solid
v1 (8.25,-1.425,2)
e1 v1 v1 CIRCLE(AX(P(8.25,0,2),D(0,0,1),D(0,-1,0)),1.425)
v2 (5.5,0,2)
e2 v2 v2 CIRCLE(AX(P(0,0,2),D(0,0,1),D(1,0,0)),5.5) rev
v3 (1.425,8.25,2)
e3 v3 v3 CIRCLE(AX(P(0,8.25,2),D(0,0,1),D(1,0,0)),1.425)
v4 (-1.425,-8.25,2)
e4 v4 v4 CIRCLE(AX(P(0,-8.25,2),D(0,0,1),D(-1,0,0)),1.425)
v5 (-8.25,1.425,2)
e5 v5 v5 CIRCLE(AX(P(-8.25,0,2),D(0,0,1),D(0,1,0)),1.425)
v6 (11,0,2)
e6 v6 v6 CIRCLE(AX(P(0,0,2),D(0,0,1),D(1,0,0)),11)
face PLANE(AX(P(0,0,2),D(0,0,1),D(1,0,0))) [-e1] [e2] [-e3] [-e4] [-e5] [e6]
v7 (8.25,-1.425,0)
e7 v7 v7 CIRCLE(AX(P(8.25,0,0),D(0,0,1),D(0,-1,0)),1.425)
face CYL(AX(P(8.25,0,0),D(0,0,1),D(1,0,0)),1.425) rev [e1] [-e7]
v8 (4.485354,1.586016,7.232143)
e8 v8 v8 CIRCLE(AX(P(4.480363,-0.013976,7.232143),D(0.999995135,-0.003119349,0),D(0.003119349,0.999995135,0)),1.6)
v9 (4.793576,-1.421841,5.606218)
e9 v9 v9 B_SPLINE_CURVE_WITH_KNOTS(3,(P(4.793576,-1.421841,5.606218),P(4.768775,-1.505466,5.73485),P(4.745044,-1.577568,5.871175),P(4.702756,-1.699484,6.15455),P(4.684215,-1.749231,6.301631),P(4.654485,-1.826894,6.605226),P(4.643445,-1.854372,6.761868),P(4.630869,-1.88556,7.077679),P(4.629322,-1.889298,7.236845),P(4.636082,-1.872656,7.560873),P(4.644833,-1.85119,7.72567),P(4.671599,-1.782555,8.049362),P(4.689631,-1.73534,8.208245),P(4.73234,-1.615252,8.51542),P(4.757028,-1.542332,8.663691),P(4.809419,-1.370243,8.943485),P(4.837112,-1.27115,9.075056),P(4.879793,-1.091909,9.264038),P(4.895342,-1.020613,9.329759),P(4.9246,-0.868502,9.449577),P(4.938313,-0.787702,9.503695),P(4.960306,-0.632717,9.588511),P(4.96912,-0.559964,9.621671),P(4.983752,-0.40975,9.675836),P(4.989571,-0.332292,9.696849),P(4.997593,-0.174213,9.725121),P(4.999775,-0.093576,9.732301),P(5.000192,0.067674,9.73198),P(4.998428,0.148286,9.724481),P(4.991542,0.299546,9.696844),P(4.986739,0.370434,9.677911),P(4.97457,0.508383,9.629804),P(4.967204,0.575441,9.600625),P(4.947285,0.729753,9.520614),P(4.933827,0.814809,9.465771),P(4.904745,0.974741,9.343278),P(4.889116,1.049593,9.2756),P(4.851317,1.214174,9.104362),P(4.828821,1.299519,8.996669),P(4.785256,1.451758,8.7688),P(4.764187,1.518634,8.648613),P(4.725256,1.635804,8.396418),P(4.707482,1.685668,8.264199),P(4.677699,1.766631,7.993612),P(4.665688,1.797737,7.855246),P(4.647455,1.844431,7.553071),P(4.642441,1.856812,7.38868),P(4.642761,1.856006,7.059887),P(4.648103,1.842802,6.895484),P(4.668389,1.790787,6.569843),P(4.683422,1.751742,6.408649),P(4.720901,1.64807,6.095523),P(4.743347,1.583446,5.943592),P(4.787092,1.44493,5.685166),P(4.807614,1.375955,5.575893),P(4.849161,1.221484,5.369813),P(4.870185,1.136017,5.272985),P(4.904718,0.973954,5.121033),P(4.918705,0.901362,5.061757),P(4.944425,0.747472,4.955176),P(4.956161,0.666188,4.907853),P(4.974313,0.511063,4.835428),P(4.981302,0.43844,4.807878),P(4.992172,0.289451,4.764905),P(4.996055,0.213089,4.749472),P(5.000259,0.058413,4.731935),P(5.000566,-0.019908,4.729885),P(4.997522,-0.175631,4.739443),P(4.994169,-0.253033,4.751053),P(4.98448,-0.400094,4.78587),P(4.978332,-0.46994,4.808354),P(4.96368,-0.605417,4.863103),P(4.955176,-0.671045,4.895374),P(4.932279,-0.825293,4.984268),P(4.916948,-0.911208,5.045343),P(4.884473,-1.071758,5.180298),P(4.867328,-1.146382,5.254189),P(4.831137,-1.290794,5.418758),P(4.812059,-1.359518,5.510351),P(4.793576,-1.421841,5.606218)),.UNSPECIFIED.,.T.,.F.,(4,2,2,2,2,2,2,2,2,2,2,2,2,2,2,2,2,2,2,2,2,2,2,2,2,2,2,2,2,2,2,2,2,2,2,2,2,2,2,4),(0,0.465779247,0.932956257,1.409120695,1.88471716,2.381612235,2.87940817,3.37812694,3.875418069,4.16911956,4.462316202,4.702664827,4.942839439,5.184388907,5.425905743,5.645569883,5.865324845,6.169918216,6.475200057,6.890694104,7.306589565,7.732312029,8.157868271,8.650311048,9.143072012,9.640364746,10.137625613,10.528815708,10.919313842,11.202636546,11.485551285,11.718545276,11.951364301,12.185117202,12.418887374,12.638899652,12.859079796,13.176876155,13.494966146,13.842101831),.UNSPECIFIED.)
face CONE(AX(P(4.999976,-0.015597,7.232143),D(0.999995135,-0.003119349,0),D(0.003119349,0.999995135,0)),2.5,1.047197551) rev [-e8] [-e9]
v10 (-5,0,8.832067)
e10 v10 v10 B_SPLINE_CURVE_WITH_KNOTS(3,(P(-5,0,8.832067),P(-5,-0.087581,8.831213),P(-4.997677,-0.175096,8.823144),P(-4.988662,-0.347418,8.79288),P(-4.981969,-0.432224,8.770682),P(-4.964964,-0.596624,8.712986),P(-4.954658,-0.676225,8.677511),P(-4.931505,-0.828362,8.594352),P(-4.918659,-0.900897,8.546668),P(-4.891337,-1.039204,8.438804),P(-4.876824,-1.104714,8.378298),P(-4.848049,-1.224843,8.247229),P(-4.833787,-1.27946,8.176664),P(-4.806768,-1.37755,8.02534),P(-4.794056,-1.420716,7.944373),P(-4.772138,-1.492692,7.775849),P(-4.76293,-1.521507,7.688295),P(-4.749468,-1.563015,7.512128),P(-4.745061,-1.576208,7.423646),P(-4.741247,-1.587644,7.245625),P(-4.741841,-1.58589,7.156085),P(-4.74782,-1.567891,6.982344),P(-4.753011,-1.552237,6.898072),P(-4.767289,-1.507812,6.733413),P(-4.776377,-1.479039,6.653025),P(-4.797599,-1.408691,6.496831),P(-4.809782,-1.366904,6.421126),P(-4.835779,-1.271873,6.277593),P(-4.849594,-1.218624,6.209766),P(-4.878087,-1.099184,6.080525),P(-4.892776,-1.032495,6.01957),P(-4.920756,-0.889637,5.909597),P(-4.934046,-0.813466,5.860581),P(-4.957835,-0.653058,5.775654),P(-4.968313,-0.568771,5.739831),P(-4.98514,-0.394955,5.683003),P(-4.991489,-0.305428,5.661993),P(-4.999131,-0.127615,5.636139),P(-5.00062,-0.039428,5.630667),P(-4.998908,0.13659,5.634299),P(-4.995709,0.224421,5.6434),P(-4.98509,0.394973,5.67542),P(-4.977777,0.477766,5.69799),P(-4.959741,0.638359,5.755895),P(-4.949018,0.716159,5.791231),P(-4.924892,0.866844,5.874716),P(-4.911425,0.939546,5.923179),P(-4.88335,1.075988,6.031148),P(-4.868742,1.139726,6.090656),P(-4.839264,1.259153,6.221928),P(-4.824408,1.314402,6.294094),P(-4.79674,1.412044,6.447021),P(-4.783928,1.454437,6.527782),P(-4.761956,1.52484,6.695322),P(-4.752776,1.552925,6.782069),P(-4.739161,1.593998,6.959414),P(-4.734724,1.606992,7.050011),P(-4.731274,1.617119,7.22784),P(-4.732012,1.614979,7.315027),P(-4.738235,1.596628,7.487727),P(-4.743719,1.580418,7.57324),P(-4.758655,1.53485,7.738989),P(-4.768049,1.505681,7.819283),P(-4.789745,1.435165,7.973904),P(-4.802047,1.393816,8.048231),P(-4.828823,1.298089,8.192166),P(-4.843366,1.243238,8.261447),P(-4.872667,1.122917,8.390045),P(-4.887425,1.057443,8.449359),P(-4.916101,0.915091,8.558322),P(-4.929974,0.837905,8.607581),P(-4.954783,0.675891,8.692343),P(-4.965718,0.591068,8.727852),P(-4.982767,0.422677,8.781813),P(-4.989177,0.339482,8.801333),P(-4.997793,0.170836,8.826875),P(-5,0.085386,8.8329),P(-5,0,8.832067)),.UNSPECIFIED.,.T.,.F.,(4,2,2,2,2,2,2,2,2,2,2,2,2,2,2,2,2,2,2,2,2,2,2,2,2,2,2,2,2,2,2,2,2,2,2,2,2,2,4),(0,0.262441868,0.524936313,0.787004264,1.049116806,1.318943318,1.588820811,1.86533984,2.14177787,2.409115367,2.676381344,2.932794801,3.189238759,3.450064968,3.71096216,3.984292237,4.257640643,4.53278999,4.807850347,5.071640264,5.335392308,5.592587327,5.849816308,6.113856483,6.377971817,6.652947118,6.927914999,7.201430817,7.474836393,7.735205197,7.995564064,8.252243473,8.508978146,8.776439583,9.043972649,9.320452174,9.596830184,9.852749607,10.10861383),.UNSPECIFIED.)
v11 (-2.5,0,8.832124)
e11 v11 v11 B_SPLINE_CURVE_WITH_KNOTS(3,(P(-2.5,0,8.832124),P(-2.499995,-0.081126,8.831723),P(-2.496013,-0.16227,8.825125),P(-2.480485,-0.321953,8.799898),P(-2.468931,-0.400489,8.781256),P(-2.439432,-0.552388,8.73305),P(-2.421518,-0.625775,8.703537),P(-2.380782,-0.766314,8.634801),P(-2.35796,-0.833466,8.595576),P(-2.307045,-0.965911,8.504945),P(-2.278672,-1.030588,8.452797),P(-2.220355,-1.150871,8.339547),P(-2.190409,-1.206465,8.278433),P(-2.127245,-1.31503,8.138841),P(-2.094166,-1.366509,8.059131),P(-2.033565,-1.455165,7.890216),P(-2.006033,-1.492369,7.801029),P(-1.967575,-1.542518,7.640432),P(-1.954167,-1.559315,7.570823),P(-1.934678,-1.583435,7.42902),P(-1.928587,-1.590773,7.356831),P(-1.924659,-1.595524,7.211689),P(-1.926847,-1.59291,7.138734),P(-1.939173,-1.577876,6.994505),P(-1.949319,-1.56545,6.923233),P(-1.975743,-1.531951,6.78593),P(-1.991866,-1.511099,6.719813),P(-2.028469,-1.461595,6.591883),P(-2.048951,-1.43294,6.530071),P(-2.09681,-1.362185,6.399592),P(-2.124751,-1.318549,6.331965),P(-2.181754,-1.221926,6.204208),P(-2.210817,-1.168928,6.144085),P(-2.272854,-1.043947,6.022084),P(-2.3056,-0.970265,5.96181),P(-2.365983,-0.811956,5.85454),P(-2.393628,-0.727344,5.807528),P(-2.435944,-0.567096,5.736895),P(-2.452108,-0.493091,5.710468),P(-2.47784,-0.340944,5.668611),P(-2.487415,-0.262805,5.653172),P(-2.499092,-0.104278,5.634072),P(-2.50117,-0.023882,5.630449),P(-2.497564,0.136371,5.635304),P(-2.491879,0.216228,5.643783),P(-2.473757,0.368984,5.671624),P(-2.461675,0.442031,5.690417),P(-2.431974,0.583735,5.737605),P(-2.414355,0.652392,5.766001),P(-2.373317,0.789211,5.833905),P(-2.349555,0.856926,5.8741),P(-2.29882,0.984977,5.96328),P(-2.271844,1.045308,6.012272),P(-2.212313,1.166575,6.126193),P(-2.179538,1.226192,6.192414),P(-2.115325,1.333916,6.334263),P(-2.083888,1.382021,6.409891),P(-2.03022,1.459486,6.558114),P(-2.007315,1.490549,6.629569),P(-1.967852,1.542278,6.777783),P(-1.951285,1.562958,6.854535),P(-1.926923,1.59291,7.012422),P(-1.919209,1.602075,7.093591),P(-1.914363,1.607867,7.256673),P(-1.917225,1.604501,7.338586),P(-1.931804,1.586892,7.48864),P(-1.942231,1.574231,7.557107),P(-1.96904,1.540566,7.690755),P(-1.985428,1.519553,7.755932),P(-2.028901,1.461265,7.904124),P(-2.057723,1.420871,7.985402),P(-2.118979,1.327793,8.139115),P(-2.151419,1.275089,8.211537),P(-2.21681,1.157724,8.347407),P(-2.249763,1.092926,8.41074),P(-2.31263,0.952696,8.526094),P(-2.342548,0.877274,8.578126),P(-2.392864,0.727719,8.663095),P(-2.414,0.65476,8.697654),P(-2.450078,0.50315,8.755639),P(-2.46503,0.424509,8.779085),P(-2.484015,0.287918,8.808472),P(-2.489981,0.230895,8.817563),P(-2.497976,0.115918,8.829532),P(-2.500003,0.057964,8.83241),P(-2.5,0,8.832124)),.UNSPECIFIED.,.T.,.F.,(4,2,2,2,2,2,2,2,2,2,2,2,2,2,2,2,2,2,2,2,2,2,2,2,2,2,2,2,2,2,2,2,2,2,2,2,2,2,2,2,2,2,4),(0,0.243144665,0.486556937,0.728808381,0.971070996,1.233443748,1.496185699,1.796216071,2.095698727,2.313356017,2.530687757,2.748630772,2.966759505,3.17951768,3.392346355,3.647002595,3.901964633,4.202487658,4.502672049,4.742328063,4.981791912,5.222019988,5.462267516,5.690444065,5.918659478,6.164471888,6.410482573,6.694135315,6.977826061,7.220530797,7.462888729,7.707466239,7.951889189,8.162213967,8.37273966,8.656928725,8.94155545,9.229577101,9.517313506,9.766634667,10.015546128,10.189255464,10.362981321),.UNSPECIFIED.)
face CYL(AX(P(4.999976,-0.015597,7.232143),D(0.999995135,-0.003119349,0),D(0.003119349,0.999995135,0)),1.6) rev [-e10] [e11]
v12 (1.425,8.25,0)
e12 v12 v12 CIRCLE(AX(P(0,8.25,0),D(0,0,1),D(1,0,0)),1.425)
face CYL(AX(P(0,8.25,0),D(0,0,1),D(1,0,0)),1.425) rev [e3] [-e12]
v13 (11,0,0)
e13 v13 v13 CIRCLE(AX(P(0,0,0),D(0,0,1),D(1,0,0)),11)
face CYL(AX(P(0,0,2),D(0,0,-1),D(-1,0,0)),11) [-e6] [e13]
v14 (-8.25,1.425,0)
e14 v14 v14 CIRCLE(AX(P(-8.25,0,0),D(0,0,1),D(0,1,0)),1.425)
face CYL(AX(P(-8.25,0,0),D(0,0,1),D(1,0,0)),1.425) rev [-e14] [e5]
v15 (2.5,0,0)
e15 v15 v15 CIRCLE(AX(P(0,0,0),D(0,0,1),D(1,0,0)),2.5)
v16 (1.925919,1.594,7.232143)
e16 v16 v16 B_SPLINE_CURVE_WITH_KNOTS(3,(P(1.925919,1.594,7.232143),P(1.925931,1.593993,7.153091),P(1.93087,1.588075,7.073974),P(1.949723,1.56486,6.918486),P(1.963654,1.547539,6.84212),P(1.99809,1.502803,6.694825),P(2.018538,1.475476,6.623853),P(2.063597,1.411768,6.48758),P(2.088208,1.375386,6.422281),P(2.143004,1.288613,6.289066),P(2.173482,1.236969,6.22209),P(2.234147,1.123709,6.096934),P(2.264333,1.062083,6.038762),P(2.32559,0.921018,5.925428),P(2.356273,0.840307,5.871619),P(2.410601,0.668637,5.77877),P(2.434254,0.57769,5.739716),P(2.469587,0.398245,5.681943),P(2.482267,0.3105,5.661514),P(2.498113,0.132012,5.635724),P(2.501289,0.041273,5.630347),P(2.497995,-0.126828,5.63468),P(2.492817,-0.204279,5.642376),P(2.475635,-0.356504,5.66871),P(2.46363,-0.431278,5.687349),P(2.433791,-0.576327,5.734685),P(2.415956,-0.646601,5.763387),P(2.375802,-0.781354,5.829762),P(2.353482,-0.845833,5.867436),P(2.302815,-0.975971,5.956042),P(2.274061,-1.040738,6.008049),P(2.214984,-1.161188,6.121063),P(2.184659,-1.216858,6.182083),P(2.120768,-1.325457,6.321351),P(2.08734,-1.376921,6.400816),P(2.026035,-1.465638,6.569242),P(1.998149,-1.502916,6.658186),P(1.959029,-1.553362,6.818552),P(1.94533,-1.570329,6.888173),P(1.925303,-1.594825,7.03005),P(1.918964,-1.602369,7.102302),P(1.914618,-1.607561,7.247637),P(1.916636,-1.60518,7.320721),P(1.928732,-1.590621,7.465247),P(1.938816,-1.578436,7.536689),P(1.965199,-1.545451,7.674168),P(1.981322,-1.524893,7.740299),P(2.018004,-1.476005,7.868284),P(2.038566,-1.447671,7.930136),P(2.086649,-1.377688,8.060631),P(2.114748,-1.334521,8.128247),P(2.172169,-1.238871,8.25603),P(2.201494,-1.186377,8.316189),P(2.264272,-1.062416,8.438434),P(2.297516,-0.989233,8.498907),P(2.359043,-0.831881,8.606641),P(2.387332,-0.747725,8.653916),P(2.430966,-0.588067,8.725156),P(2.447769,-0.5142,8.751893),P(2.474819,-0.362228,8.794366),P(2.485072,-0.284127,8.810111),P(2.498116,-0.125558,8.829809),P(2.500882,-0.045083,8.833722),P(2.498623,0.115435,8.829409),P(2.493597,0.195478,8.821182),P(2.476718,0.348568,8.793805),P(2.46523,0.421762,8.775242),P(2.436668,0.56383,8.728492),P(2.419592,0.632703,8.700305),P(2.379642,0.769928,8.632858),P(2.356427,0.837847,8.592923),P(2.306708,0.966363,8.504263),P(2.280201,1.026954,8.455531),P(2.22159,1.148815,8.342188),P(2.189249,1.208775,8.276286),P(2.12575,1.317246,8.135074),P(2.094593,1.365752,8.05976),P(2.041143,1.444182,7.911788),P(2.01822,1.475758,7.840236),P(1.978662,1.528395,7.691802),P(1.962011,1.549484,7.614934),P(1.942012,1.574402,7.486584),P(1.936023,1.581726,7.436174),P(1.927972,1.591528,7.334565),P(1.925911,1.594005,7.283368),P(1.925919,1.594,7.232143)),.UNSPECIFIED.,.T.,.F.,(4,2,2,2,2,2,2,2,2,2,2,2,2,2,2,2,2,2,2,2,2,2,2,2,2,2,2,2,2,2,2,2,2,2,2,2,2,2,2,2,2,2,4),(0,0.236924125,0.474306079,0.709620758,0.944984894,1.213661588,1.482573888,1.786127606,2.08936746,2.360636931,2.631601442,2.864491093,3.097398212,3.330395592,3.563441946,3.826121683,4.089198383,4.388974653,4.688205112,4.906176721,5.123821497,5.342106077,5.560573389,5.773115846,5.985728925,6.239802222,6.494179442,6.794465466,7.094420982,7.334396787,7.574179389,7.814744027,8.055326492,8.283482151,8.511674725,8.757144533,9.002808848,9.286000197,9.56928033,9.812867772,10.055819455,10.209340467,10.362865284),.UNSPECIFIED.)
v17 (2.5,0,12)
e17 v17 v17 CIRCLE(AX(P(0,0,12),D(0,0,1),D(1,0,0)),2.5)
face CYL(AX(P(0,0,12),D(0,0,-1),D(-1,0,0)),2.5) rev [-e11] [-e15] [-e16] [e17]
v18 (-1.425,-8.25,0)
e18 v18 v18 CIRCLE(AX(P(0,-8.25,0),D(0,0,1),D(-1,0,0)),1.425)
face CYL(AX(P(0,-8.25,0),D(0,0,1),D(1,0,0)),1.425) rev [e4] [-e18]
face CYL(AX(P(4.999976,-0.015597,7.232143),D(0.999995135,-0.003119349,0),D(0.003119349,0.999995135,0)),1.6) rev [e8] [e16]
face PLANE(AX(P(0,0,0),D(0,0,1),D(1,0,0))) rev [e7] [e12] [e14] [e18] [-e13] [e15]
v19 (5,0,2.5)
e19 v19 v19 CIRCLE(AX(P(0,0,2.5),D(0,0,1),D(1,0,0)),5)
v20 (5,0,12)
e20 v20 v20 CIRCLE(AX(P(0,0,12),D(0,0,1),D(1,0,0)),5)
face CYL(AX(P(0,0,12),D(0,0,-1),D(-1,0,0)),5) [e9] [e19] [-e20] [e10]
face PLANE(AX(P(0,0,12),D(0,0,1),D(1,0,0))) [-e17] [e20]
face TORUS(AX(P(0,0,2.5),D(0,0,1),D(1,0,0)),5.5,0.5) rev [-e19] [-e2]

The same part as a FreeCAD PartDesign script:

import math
import FreeCAD as App
import Part
import Sketcher
Q = App.Units.Quantity


def edges_at(feature, points):
    """Names of the edges that pass closest to the given points."""
    edges = feature.Shape.Edges
    near = lambda p: min(range(len(edges)), key=lambda i: edges[i].distToShape(Part.Vertex(*p))[0])
    return sorted({f"Edge{near(p) + 1}" for p in points})

doc = App.newDocument("Part")
body = doc.addObject("PartDesign::Body", "Body")

# Sketch on XY plane
sketch1 = body.newObject("Sketcher::SketchObject", "Sketch")
sketch1.AttachmentSupport = (doc.getObject("XY_Plane"), [""])
sketch1.MapMode = "FlatFace"
sketch1.addGeometry(Part.Circle(App.Vector(0, 0, 0), App.Vector(0, 0, 1), 5), False)
sketch1.addGeometry(Part.Circle(App.Vector(0, 0, 0), App.Vector(0, 0, 1), 2.5), False)
sketch1.addConstraint(Sketcher.Constraint("Coincident", 0, 3, -1, 1))
sketch1.addConstraint(Sketcher.Constraint("Coincident", 1, 3, -1, 1))
sketch1.addConstraint(Sketcher.Constraint("Diameter", 0, Q("10 mm")))
sketch1.addConstraint(Sketcher.Constraint("Diameter", 1, Q("5 mm")))
pad1 = body.newObject("PartDesign::Pad", "Pad")
pad1.Profile = sketch1
pad1.Length = 12

# Sketch on XY plane
sketch2 = body.newObject("Sketcher::SketchObject", "Sketch001")
sketch2.AttachmentSupport = (doc.getObject("XY_Plane"), [""])
sketch2.MapMode = "FlatFace"
sketch2.addGeometry(Part.Circle(App.Vector(0, 0, 0), App.Vector(0, 0, 1), 11), False)
sketch2.addGeometry(Part.Circle(App.Vector(0, 0, 0), App.Vector(0, 0, 1), 5), False)
sketch2.addConstraint(Sketcher.Constraint("Coincident", 0, 3, -1, 1))
sketch2.addConstraint(Sketcher.Constraint("Coincident", 1, 3, -1, 1))
sketch2.addConstraint(Sketcher.Constraint("Diameter", 0, Q("22 mm")))
sketch2.addConstraint(Sketcher.Constraint("Diameter", 1, Q("10 mm")))
pad2 = body.newObject("PartDesign::Pad", "Pad001")
pad2.Profile = sketch2
pad2.Length = 2
doc.recompute()

fillet = body.newObject("PartDesign::Fillet", "Fillet")
fillet.Base = (pad2, edges_at(pad2, [(-5, 0, 2)]))
fillet.Radius = 0.5

# Sketch on XY plane
sketch3 = body.newObject("Sketcher::SketchObject", "Sketch002")
sketch3.AttachmentSupport = (doc.getObject("XY_Plane"), [""])
sketch3.MapMode = "FlatFace"
sketch3.AttachmentOffset = App.Placement(App.Vector(0, 0, 2), App.Rotation())
sketch3.addGeometry(Part.ArcOfCircle(Part.Circle(App.Vector(0, 8.25, 0), App.Vector(0, 0, 1), 1.43), math.radians(-175), math.radians(-90)), False)
sketch3.addGeometry(Part.ArcOfCircle(Part.Circle(App.Vector(0, 8.25, 0), App.Vector(0, 0, 1), 1.43), math.radians(-90), math.radians(-5)), False)
sketch3.addGeometry(Part.ArcOfCircle(Part.Circle(App.Vector(0, 8.25, 0), App.Vector(0, 0, 1), 1.43), math.radians(-4.95), math.radians(0)), False)
sketch3.addGeometry(Part.ArcOfCircle(Part.Circle(App.Vector(0, 8.25, 0), App.Vector(0, 0, 1), 1.43), math.radians(0), math.radians(90)), False)
sketch3.addGeometry(Part.ArcOfCircle(Part.Circle(App.Vector(0, 8.25, 0), App.Vector(0, 0, 1), 1.43), math.radians(90), math.radians(185)), False)
sketch3.addConstraint(Sketcher.Constraint("Tangent", 0, 2, 1, 1))
sketch3.addConstraint(Sketcher.Constraint("Tangent", 1, 2, 2, 1))
sketch3.addConstraint(Sketcher.Constraint("Tangent", 2, 2, 3, 1))
sketch3.addConstraint(Sketcher.Constraint("Tangent", 3, 2, 4, 1))
sketch3.addConstraint(Sketcher.Constraint("Tangent", 4, 2, 0, 1))
sketch3.addConstraint(Sketcher.Constraint("Coincident", 2, 3, 0, 3))
sketch3.addConstraint(Sketcher.Constraint("Symmetric", 1, 2, 4, 2, -2))
sketch3.addConstraint(Sketcher.Constraint("PointOnObject", 0, 2, -2))
sketch3.addConstraint(Sketcher.Constraint("PointOnObject", 3, 2, -2))
sketch3.addConstraint(Sketcher.Constraint("Horizontal", 4, 3, 2, 2))
sketch3.addConstraint(Sketcher.Constraint("Radius", 0, Q("1.425 mm")))
sketch3.addConstraint(Sketcher.Constraint("DistanceY", -1, 1, 0, 3, Q("8.25 mm")))
sketch3.addConstraint(Sketcher.Constraint("DistanceY", -1, 1, 1, 2, Q("8.126932 mm")))
pocket1 = body.newObject("PartDesign::Pocket", "Pocket")
pocket1.Profile = sketch3
pocket1.Length = 2
doc.recompute()

polarpattern = body.newObject("PartDesign::PolarPattern", "PolarPattern")
polarpattern.Originals = [pocket1]
polarpattern.Axis = (doc.getObject("Z_Axis"), [""])
polarpattern.Angle = 360
polarpattern.Occurrences = 4
body.Tip = polarpattern

# Sketch on an angled plane
sketch4 = body.newObject("Sketcher::SketchObject", "Sketch003")
sketch4.Placement = App.Placement(App.Vector(4.999976, -0.015597, 0), App.Rotation(App.Vector(0.003119349, 0.999995135, 0), App.Vector(0, 0, 1), App.Vector(0.999995135, -0.003119349, 0), "ZXY"))
sketch4.addGeometry(Part.Circle(App.Vector(0, 7.2, 0), App.Vector(0, 0, 1), 1.6), False)
sketch4.addConstraint(Sketcher.Constraint("PointOnObject", 0, 3, -2))
sketch4.addConstraint(Sketcher.Constraint("Diameter", 0, Q("3.2 mm")))
sketch4.addConstraint(Sketcher.Constraint("DistanceY", -1, 1, 0, 3, Q("7.232143 mm")))
doc.recompute()
hole = body.newObject("PartDesign::Hole", "Hole")
hole.Profile = sketch4
hole.ThreadType = "None"
hole.Diameter = 3.2
hole.DepthType = "ThroughAll"
hole.HoleCutType = "Countersink"
hole.HoleCutDiameter = 5
hole.HoleCutCountersinkAngle = 120

doc.recompute()
